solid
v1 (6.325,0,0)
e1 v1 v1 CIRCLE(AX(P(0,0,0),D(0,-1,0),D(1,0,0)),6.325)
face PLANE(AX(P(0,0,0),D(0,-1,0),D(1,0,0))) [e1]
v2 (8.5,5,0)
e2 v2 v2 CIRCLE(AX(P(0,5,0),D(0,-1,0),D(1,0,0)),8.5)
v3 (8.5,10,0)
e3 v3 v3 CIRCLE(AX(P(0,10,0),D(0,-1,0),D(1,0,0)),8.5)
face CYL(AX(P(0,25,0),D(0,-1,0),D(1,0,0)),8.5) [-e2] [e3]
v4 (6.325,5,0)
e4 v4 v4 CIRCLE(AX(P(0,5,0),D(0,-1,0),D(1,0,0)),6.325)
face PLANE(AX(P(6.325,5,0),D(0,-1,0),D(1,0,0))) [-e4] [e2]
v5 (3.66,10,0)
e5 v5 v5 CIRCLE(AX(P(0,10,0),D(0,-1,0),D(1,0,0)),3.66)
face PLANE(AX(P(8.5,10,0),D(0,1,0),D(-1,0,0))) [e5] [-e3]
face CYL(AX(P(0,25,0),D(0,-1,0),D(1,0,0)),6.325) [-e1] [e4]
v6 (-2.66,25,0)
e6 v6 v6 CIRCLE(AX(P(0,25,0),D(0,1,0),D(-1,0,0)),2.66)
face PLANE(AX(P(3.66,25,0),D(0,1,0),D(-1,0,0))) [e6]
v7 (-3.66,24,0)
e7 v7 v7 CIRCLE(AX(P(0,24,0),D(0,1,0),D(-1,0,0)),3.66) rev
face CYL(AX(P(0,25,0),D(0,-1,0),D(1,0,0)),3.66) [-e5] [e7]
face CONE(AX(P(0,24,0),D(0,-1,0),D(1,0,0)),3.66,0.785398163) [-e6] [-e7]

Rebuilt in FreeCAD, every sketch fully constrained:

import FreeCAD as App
import Part
import Sketcher
Q = App.Units.Quantity


def edges_at(feature, points):
    """Names of the edges that pass closest to the given points."""
    edges = feature.Shape.Edges
    near = lambda p: min(range(len(edges)), key=lambda i: edges[i].distToShape(Part.Vertex(*p))[0])
    return sorted({f"Edge{near(p) + 1}" for p in points})

doc = App.newDocument("Part")
body = doc.addObject("PartDesign::Body", "Body")

# Sketch on XY plane
sketch1 = body.newObject("Sketcher::SketchObject", "Sketch")
sketch1.AttachmentSupport = (doc.getObject("XY_Plane"), [""])
sketch1.MapMode = "FlatFace"
sketch1.addGeometry([
    Part.LineSegment(App.Vector(0, 0, 0), App.Vector(6.3, 0, 0)),  # 0
    Part.LineSegment(App.Vector(6.3, 0, 0), App.Vector(6.3, 5, 0)),  # 1
    Part.LineSegment(App.Vector(6.3, 5, 0), App.Vector(8.5, 5, 0)),  # 2
    Part.LineSegment(App.Vector(8.5, 5, 0), App.Vector(8.5, 10, 0)),  # 3
    Part.LineSegment(App.Vector(8.5, 10, 0), App.Vector(3.7, 10, 0)),  # 4
    Part.LineSegment(App.Vector(3.7, 10, 0), App.Vector(3.7, 25, 0)),  # 5
    Part.LineSegment(App.Vector(3.7, 25, 0), App.Vector(0, 25, 0)),  # 6
    Part.LineSegment(App.Vector(0, 25, 0), App.Vector(0, 0, 0)),  # 7
], False)
sketch1.addConstraint([
    Sketcher.Constraint("Coincident", 0, 2, 1, 1),
    Sketcher.Constraint("Coincident", 1, 2, 2, 1),
    Sketcher.Constraint("Coincident", 2, 2, 3, 1),
    Sketcher.Constraint("Coincident", 3, 2, 4, 1),
    Sketcher.Constraint("Coincident", 4, 2, 5, 1),
    Sketcher.Constraint("Coincident", 5, 2, 6, 1),
    Sketcher.Constraint("Coincident", 6, 2, 7, 1),
    Sketcher.Constraint("Coincident", 7, 2, 0, 1),
    Sketcher.Constraint("Horizontal", 0),
    Sketcher.Constraint("Vertical", 1),
    Sketcher.Constraint("Horizontal", 2),
    Sketcher.Constraint("Vertical", 3),
    Sketcher.Constraint("Horizontal", 4),
    Sketcher.Constraint("Vertical", 5),
    Sketcher.Constraint("Horizontal", 6),
    Sketcher.Constraint("Vertical", 7),
    Sketcher.Constraint("Coincident", 7, 2, -1, 1),
    Sketcher.Constraint("Equal", 1, 3),
    Sketcher.Constraint("DistanceY", 1, 1, 1, 2, Q("5 mm")),
    Sketcher.Constraint("DistanceY", 5, 1, 5, 2, Q("15 mm")),
    Sketcher.Constraint("DistanceX", 4, 2, 4, 1, Q("4.84 mm")),
    Sketcher.Constraint("DistanceX", 6, 2, 6, 1, Q("3.66 mm")),
    Sketcher.Constraint("DistanceX", 0, 1, 0, 2, Q("6.325 mm")),
])
revolution = body.newObject("PartDesign::Revolution", "Revolution")
revolution.Profile = sketch1
revolution.ReferenceAxis = (sketch1, ["V_Axis"])
revolution.Angle = 360
doc.recompute()

chamfer = body.newObject("PartDesign::Chamfer", "Chamfer")
chamfer.Base = (revolution, edges_at(revolution, [(-3.66, 25, 0)]))
chamfer.Size = 1

doc.recompute()
